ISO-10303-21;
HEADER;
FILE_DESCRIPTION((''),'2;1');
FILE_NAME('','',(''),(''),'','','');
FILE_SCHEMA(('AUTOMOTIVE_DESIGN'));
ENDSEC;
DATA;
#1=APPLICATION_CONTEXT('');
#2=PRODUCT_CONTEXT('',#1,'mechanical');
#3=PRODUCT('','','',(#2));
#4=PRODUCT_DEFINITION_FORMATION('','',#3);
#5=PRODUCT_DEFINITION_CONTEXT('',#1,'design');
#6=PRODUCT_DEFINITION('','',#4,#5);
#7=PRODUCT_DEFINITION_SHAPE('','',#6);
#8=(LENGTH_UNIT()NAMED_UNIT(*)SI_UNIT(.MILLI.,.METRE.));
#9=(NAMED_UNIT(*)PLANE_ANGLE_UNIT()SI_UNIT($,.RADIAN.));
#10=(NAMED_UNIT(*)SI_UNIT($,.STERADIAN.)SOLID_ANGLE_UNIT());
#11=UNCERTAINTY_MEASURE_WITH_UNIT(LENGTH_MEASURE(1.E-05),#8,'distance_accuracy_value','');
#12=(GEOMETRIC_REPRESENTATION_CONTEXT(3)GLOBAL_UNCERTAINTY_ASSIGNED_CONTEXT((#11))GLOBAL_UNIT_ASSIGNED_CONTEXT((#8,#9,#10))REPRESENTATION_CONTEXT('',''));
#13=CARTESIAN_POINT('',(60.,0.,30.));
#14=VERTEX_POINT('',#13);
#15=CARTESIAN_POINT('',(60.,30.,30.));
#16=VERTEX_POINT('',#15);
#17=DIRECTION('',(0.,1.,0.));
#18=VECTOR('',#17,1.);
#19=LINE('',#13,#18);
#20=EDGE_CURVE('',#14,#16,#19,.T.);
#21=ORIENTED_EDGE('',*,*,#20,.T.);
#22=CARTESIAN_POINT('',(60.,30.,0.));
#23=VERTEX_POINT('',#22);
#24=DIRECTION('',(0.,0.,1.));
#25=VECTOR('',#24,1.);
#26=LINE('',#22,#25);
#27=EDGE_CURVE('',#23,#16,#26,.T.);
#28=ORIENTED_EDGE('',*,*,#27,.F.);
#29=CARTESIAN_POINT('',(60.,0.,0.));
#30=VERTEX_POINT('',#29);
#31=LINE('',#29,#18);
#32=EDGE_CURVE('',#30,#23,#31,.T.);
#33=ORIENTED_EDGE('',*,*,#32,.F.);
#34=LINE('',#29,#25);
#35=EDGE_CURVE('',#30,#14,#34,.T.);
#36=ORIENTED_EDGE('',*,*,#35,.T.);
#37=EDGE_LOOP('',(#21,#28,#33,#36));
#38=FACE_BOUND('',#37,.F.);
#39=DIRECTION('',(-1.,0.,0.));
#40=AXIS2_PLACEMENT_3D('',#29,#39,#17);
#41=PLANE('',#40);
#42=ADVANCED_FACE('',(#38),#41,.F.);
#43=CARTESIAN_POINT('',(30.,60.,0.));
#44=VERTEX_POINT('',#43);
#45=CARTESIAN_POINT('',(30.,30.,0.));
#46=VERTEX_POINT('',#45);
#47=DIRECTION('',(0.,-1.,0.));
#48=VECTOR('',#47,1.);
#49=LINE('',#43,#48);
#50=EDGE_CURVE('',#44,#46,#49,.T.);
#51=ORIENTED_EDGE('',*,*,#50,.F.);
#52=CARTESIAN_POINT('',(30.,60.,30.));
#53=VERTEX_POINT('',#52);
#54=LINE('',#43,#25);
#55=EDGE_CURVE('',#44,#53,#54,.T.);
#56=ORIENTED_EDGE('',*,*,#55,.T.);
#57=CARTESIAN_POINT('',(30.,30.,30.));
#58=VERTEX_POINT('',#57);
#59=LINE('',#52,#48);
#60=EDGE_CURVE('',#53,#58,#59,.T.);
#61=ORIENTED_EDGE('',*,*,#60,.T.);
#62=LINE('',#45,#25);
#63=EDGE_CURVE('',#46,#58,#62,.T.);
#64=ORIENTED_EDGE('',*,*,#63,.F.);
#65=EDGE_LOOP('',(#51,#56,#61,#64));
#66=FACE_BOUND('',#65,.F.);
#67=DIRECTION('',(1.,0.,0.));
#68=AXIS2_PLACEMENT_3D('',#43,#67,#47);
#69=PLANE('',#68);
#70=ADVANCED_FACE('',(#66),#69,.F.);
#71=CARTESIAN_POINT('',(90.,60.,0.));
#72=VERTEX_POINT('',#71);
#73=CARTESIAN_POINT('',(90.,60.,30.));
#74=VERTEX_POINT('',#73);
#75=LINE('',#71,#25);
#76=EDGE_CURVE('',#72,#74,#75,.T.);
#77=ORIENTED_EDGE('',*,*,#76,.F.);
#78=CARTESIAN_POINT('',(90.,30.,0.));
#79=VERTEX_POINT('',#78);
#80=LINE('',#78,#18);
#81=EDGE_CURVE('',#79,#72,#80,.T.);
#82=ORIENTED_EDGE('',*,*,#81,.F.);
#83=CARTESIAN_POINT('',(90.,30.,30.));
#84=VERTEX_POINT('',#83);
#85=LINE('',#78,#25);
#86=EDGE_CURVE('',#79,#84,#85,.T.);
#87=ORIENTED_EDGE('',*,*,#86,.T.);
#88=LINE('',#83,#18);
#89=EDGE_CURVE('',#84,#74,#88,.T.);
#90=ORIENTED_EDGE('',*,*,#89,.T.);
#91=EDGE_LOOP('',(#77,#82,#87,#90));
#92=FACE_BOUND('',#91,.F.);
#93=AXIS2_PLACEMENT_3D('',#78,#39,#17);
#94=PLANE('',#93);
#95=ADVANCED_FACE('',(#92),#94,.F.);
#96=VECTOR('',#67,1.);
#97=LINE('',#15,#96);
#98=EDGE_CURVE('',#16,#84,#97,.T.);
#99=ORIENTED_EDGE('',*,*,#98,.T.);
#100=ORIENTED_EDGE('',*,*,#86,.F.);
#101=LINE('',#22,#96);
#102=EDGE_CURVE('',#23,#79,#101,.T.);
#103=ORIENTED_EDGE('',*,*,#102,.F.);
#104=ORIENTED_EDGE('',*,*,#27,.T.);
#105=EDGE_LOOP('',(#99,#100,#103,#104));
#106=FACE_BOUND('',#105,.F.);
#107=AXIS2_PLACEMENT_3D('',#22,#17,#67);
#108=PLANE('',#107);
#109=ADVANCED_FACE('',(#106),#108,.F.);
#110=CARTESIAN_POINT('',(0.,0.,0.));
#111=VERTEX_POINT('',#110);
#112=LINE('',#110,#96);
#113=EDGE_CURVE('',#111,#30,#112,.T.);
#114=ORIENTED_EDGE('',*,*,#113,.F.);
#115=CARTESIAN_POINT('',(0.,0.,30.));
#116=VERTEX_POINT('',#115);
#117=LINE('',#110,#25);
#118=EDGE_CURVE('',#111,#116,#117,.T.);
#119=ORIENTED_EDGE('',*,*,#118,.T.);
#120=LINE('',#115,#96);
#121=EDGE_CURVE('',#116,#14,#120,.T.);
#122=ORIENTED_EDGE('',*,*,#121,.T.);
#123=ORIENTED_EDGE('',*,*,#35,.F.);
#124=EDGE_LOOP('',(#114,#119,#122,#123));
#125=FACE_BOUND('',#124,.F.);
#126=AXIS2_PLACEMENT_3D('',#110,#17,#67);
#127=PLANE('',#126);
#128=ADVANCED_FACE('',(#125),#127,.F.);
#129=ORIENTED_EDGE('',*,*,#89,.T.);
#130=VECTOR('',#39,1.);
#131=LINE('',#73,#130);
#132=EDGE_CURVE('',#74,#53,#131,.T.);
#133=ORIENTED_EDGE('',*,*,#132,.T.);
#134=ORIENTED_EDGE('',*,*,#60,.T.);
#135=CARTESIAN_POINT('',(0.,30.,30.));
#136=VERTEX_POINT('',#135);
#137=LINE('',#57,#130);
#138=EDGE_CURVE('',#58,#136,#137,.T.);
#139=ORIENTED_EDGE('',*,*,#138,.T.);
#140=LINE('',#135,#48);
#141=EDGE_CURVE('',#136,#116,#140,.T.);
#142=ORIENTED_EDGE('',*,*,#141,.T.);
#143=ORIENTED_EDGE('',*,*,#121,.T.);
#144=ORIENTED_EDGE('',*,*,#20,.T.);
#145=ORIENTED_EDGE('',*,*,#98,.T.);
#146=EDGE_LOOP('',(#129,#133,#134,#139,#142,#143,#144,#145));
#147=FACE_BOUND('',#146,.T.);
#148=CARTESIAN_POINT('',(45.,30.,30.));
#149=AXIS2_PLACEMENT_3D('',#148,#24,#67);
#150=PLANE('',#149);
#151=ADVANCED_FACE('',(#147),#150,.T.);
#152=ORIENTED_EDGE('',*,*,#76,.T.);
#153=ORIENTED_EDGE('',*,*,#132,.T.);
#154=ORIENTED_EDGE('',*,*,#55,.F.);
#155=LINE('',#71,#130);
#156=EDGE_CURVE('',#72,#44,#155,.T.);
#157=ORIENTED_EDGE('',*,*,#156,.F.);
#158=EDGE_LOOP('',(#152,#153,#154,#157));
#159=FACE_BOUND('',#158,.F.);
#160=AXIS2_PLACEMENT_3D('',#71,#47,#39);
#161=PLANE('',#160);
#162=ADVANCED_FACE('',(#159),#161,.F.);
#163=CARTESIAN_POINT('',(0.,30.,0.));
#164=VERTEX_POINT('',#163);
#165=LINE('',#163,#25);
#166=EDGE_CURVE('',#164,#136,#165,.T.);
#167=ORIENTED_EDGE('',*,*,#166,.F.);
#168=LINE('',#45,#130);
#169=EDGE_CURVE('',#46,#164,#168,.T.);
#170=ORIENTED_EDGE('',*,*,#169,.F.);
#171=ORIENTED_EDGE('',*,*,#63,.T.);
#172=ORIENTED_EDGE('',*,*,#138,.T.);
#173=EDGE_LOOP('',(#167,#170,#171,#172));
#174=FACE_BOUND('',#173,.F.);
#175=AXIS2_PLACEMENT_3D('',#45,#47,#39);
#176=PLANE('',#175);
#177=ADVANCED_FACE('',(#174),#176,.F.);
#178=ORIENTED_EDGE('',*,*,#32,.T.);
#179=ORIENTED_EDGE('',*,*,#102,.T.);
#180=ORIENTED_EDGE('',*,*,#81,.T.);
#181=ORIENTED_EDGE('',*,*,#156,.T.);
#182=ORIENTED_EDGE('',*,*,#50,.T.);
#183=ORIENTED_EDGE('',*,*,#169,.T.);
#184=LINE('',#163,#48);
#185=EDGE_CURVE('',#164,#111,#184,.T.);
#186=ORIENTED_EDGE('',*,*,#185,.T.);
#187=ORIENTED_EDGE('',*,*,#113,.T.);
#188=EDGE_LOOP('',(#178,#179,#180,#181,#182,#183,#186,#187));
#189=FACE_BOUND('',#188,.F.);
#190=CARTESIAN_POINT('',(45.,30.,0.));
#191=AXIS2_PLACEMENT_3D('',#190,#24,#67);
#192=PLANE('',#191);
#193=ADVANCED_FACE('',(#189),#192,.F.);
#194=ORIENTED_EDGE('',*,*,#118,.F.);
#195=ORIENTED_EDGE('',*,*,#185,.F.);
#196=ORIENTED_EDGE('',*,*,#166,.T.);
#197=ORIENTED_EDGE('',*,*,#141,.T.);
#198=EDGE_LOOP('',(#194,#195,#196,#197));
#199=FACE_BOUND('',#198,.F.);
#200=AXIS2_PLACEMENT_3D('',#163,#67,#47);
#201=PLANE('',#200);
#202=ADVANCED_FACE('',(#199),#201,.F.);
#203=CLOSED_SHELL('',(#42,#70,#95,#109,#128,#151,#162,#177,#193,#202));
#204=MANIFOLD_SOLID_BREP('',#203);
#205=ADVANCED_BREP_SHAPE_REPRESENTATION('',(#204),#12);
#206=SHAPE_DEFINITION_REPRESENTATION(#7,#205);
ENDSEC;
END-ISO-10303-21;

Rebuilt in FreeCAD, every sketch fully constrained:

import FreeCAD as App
import Part
import Sketcher
Q = App.Units.Quantity

doc = App.newDocument("Part")
body = doc.addObject("PartDesign::Body", "Body")

# Sketch on XY plane
sketch1 = body.newObject("Sketcher::SketchObject", "Sketch")
sketch1.AttachmentSupport = (doc.getObject("XY_Plane"), [""])
sketch1.MapMode = "FlatFace"
sketch1.addGeometry([
    Part.LineSegment(App.Vector(0, 0, 0), App.Vector(60, 0, 0)),  # 0
    Part.LineSegment(App.Vector(60, 0, 0), App.Vector(60, 30, 0)),  # 1
    Part.LineSegment(App.Vector(60, 30, 0), App.Vector(90, 30, 0)),  # 2
    Part.LineSegment(App.Vector(90, 30, 0), App.Vector(90, 60, 0)),  # 3
    Part.LineSegment(App.Vector(90, 60, 0), App.Vector(30, 60, 0)),  # 4
    Part.LineSegment(App.Vector(30, 60, 0), App.Vector(30, 30, 0)),  # 5
    Part.LineSegment(App.Vector(30, 30, 0), App.Vector(0, 30, 0)),  # 6
    Part.LineSegment(App.Vector(0, 30, 0), App.Vector(0, 0, 0)),  # 7
], False)
sketch1.addConstraint([
    Sketcher.Constraint("Coincident", 0, 2, 1, 1),
    Sketcher.Constraint("Coincident", 1, 2, 2, 1),
    Sketcher.Constraint("Coincident", 2, 2, 3, 1),
    Sketcher.Constraint("Coincident", 3, 2, 4, 1),
    Sketcher.Constraint("Coincident", 4, 2, 5, 1),
    Sketcher.Constraint("Coincident", 5, 2, 6, 1),
    Sketcher.Constraint("Coincident", 6, 2, 7, 1),
    Sketcher.Constraint("Coincident", 7, 2, 0, 1),
    Sketcher.Constraint("Horizontal", 0),
    Sketcher.Constraint("Vertical", 1),
    Sketcher.Constraint("Horizontal", 2),
    Sketcher.Constraint("Vertical", 3),
    Sketcher.Constraint("Horizontal", 4),
    Sketcher.Constraint("Vertical", 5),
    Sketcher.Constraint("Horizontal", 6),
    Sketcher.Constraint("Vertical", 7),
    Sketcher.Constraint("Coincident", 7, 2, -1, 1),
    Sketcher.Constraint("Horizontal", 2, 2, 5, 2),
    Sketcher.Constraint("Equal", 0, 4),
    Sketcher.Constraint("Equal", 6, 1),
    Sketcher.Constraint("Equal", 1, 3),
    Sketcher.Constraint("DistanceX", 0, 1, 0, 2, Q("60 mm")),
    Sketcher.Constraint("DistanceX", 2, 1, 2, 2, Q("30 mm")),
])
pad1 = body.newObject("PartDesign::Pad", "Pad")
pad1.Profile = sketch1
pad1.Length = 30

doc.recompute()
